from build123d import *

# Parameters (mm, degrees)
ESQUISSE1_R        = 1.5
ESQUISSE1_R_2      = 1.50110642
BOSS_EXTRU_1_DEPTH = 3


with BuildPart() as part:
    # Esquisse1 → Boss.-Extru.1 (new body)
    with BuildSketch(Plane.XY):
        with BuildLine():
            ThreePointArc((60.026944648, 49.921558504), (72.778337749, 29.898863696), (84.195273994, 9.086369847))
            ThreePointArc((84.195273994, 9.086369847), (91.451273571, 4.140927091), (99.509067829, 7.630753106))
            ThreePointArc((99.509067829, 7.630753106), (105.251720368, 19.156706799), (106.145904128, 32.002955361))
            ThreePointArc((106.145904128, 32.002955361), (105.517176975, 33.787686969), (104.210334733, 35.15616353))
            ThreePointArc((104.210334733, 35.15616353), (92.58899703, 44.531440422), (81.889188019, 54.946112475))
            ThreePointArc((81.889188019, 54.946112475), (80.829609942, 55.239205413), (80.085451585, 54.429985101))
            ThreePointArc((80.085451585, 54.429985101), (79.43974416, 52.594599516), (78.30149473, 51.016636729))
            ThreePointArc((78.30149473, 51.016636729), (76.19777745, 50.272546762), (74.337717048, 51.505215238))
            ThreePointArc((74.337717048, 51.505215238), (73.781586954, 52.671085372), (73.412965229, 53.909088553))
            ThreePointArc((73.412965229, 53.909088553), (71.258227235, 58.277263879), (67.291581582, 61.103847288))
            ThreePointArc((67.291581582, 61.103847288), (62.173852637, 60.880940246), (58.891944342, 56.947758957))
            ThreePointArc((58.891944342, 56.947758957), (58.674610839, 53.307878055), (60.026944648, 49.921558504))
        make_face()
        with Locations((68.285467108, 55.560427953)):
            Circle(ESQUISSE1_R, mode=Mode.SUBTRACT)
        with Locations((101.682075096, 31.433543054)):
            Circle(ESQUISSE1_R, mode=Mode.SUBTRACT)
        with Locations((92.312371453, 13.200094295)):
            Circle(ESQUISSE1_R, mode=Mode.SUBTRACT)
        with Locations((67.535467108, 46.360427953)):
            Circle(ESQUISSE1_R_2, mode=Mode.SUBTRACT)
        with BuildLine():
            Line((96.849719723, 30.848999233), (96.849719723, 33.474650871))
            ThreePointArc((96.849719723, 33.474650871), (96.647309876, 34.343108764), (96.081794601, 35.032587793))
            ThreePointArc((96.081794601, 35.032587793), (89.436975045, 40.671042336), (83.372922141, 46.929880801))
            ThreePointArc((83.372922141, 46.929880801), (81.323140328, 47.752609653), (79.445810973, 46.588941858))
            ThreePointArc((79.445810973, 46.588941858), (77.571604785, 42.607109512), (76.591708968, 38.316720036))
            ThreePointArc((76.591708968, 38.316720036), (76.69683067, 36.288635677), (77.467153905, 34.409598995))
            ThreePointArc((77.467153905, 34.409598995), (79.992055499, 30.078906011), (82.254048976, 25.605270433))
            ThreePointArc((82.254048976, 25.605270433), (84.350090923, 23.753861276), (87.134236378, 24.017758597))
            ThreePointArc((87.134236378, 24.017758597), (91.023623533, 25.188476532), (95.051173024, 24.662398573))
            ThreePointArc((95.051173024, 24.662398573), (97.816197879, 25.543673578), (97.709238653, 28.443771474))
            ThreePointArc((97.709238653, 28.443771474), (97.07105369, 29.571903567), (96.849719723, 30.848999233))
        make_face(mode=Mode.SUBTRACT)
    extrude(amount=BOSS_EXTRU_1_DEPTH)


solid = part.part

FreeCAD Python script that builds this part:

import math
import FreeCAD as App
import Part
import Sketcher

V = App.Vector
Q = App.Units.Quantity

doc = App.newDocument("Part")
body = doc.addObject("PartDesign::Body", "Body")

# Sketch on XY plane
sketch1 = body.newObject("Sketcher::SketchObject", "Sketch")
sketch1.AttachmentSupport = (doc.getObject("XY_Plane"), [""])
sketch1.MapMode = "FlatFace"
sketch1.addGeometry([
    Part.ArcOfCircle(Part.Circle(V(-239.950658, -155.189968, 0), V(0, 0, 1), 363.39689), math.radians(26.875776), math.radians(34.362608)),  # 0
    Part.ArcOfCircle(Part.Circle(V(92.312371, 13.200094, 0), V(0, 0, 1), 9.1), math.radians(-153.124224), math.radians(-37.735381)),  # 1
    Part.ArcOfCircle(Part.Circle(V(73.411158, 27.827265, 0), V(0, 0, 1), 33), math.radians(-37.735381), math.radians(7.26947)),  # 2
    Part.ArcOfCircle(Part.Circle(V(101.682075, 31.433543, 0), V(0, 0, 1), 4.5), math.radians(7.26947), math.radians(55.817172)),  # 3
    Part.ArcOfCircle(Part.Circle(V(199.067313, 164.628674, 0), V(0, 0, 1), 160.502266), math.radians(-136.892386), math.radians(-126.228065)),  # 4
    Part.ArcOfCircle(Part.Circle(V(81.119602, 54.225755, 0), V(0, 0, 1), 1.054124), math.radians(43.107614), math.radians(168.82864)),  # 5
    Part.ArcOfCircle(Part.Circle(V(73.402927, 55.74969, 0), V(0, 0, 1), 6.81159), math.radians(-44.015495), math.radians(-11.17136)),  # 6
    Part.ArcOfCircle(Part.Circle(V(76.503615, 52.753769, 0), V(0, 0, 1), 2.5), math.radians(-150.038267), math.radians(-44.015495)),  # 7
    Part.ArcOfCircle(Part.Circle(V(81.532929, 55.652968, 0), V(0, 0, 1), 8.305115), math.radians(-167.879022), math.radians(-150.038267)),  # 8
    Part.ArcOfCircle(Part.Circle(V(63.662978, 51.815138, 0), V(0, 0, 1), 9.972306), math.radians(12.120978), math.radians(68.662061)),  # 9
    Part.ArcOfCircle(Part.Circle(V(64.985035, 55.199417, 0), V(0, 0, 1), 6.338963), math.radians(68.662061), math.radians(163.989778)),  # 10
    Part.ArcOfCircle(Part.Circle(V(66.92976, 54.641401, 0), V(0, 0, 1), 8.362163), math.radians(163.989778), math.radians(214.362608)),  # 11
    Part.Circle(V(92.312371, 13.200094, 0), V(0, 0, 1), 1.5),  # 12
    Part.Circle(V(101.682075, 31.433543, 0), V(0, 0, 1), 1.5),  # 13
    Part.Circle(V(67.535467, 46.360428, 0), V(0, 0, 1), 1.501106),  # 14
    Part.Circle(V(68.285467, 55.560428, 0), V(0, 0, 1), 1.5),  # 15
    Part.LineSegment(V(96.84972, 33.474651, 0), V(96.84972, 30.848999, 0)),  # 16
    Part.ArcOfCircle(Part.Circle(V(100.644804, 30.848999, 0), V(0, 0, 1), 3.795084), math.radians(-180), math.radians(-140.670846)),  # 17
    Part.ArcOfCircle(Part.Circle(V(95.853524, 26.923309, 0), V(0, 0, 1), 2.399059), math.radians(-109.538733), math.radians(39.329154)),  # 18
    Part.ArcOfCircle(Part.Circle(V(91.810107, 15.529536, 0), V(0, 0, 1), 9.690907), math.radians(70.461267), math.radians(118.848861)),  # 19
    Part.ArcOfCircle(Part.Circle(V(85.437747, 27.097437, 0), V(0, 0, 1), 3.516034), math.radians(-154.887996), math.radians(-61.151139)),  # 20
    Part.ArcOfCircle(Part.Circle(V(6.215974, -10.032995, 0), V(0, 0, 1), 83.975441), math.radians(25.112004), math.radians(31.953662)),  # 21
    Part.ArcOfCircle(Part.Circle(V(82.600338, 37.611399, 0), V(0, 0, 1), 6.049884), math.radians(173.304989), math.radians(211.953662)),  # 22
    Part.ArcOfCircle(Part.Circle(V(96.924351, 35.929978, 0), V(0, 0, 1), 20.472246), math.radians(148.623847), math.radians(173.304989)),  # 23
    Part.ArcOfCircle(Part.Circle(V(81.534763, 45.315033, 0), V(0, 0, 1), 2.446745), math.radians(41.299736), math.radians(148.623847)),  # 24
    Part.ArcOfCircle(Part.Circle(V(150.512654, 105.913028, 0), V(0, 0, 1), 89.368648), math.radians(-138.700264), math.radians(-127.521558)),  # 25
    Part.ArcOfCircle(Part.Circle(V(94.885416, 33.474651, 0), V(0, 0, 1), 1.964304), math.radians(0), math.radians(52.478442)),  # 26
], False)
sketch1.addConstraint([
    Sketcher.Constraint("Coincident", 0, 1, 1, 1),
    Sketcher.Constraint("Coincident", 1, 2, 2, 1),
    Sketcher.Constraint("Coincident", 2, 2, 3, 1),
    Sketcher.Constraint("Coincident", 3, 2, 4, 2),
    Sketcher.Constraint("Coincident", 4, 1, 5, 1),
    Sketcher.Constraint("Coincident", 5, 2, 6, 2),
    Sketcher.Constraint("Coincident", 6, 1, 7, 2),
    Sketcher.Constraint("Coincident", 7, 1, 8, 2),
    Sketcher.Constraint("Coincident", 8, 1, 9, 1),
    Sketcher.Constraint("Coincident", 9, 2, 10, 1),
    Sketcher.Constraint("Coincident", 10, 2, 11, 1),
    Sketcher.Constraint("Coincident", 11, 2, 0, 2),
    Sketcher.Constraint("Coincident", 16, 2, 17, 1),
    Sketcher.Constraint("Coincident", 17, 2, 18, 2),
    Sketcher.Constraint("Coincident", 18, 1, 19, 1),
    Sketcher.Constraint("Coincident", 19, 2, 20, 2),
    Sketcher.Constraint("Coincident", 20, 1, 21, 1),
    Sketcher.Constraint("Coincident", 21, 2, 22, 2),
    Sketcher.Constraint("Coincident", 22, 1, 23, 2),
    Sketcher.Constraint("Coincident", 23, 1, 24, 2),
    Sketcher.Constraint("Coincident", 24, 1, 25, 1),
    Sketcher.Constraint("Coincident", 25, 2, 26, 2),
    Sketcher.Constraint("Coincident", 26, 1, 16, 1),
    Sketcher.Constraint("Vertical", 16),
    Sketcher.Constraint("Coincident", 12, 3, 1, 3),
    Sketcher.Constraint("Coincident", 13, 3, 3, 3),
    Sketcher.Constraint("Diameter", 12, Q("3 mm")),
    Sketcher.Constraint("Diameter", 13, Q("3 mm")),
    Sketcher.Constraint("Diameter", 15, Q("3 mm")),
    Sketcher.Constraint("Radius", 2, Q("33 mm")),
    Sketcher.Constraint("Radius", 1, Q("9.1 mm")),
    Sketcher.Constraint("Radius", 3, Q("4.5 mm")),
    Sketcher.Constraint("Radius", 7, Q("2.5 mm")),
    Sketcher.Constraint("Radius", 0, Q("363.39689 mm")),
    Sketcher.Constraint("Radius", 6, Q("6.81159 mm")),
    Sketcher.Constraint("Radius", 18, Q("2.399059 mm")),
    Sketcher.Constraint("Radius", 21, Q("83.975441 mm")),
    Sketcher.Constraint("Radius", 25, Q("89.368648 mm")),
    Sketcher.Constraint("Diameter", 14, Q("3.002213 mm")),
    Sketcher.Constraint("DistanceY", -1, 1, 17, 3, Q("30.848999 mm")),
    Sketcher.Constraint("DistanceY", -1, 1, 16, 2, Q("30.848999 mm")),
    Sketcher.Constraint("Radius", 4, Q("160.502266 mm")),
    Sketcher.Constraint("Radius", 5, Q("1.054124 mm")),
    Sketcher.Constraint("Radius", 8, Q("8.305115 mm")),
    Sketcher.Constraint("Radius", 9, Q("9.972306 mm")),
    Sketcher.Constraint("Radius", 10, Q("6.338963 mm")),
    Sketcher.Constraint("Radius", 11, Q("8.362163 mm")),
    Sketcher.Constraint("Radius", 17, Q("3.795084 mm")),
    Sketcher.Constraint("Radius", 19, Q("9.690907 mm")),
    Sketcher.Constraint("Radius", 20, Q("3.516034 mm")),
    Sketcher.Constraint("Radius", 22, Q("6.049884 mm")),
    Sketcher.Constraint("Radius", 23, Q("20.472246 mm")),
    Sketcher.Constraint("Radius", 24, Q("2.446745 mm")),
    Sketcher.Constraint("Radius", 26, Q("1.964304 mm")),
    Sketcher.Constraint("DistanceX", 10, 2, 11, 2, Q("1.135 mm")),
    Sketcher.Constraint("DistanceY", 16, 2, 16, 1, Q("2.625652 mm")),
    Sketcher.Constraint("DistanceY", -1, 1, 11, 3, Q("54.641401 mm")),
    Sketcher.Constraint("DistanceY", -1, 1, 22, 3, Q("37.611399 mm")),
    Sketcher.Constraint("DistanceY", -1, 1, 18, 1, Q("24.662399 mm")),
    Sketcher.Constraint("DistanceY", -1, 1, 21, 2, Q("34.409599 mm")),
    Sketcher.Constraint("DistanceY", 7, 3, 8, 3, Q("2.899199 mm")),
    Sketcher.Constraint("DistanceY", 19, 3, 20, 3, Q("11.567901 mm")),
    Sketcher.Constraint("DistanceX", 17, 3, 2, 2, Q("5.5011 mm")),
    Sketcher.Constraint("DistanceY", 8, 1, 6, 3, Q("1.840601 mm")),
    Sketcher.Constraint("DistanceX", 15, 3, 8, 1, Q("5.127498 mm")),
    Sketcher.Constraint("DistanceY", 11, 2, 10, 2, Q("7.0262 mm")),
    Sketcher.Constraint("DistanceX", 20, 1, 20, 3, Q("3.183698 mm")),
    Sketcher.Constraint("DistanceX", -1, 1, 1, 3, Q("92.312371 mm")),
    Sketcher.Constraint("DistanceY", -1, 1, 6, 3, Q("55.74969 mm")),
    Sketcher.Constraint("DistanceY", -1, 1, 7, 3, Q("52.753769 mm")),
    Sketcher.Constraint("DistanceX", -1, 1, 8, 3, Q("81.532929 mm")),
    Sketcher.Constraint("DistanceY", -1, 1, 9, 3, Q("51.815138 mm")),
    Sketcher.Constraint("DistanceX", -1, 1, 11, 3, Q("66.92976 mm")),
    Sketcher.Constraint("DistanceY", -1, 1, 18, 3, Q("26.923309 mm")),
    Sketcher.Constraint("DistanceX", -1, 1, 23, 3, Q("96.924351 mm")),
    Sketcher.Constraint("DistanceY", -1, 1, 23, 3, Q("35.929978 mm")),
    Sketcher.Constraint("DistanceY", -1, 1, 26, 3, Q("33.474651 mm")),
    Sketcher.Constraint("DistanceY", -1, 1, 0, 1, Q("9.08637 mm")),
    Sketcher.Constraint("DistanceX", -1, 1, 4, 1, Q("81.889188 mm")),
    Sketcher.Constraint("DistanceX", -1, 1, 5, 2, Q("80.085452 mm")),
    Sketcher.Constraint("DistanceX", -1, 1, 9, 2, Q("67.291582 mm")),
    Sketcher.Constraint("DistanceX", -1, 1, 16, 2, Q("96.84972 mm")),
    Sketcher.Constraint("DistanceX", -1, 1, 17, 2, Q("97.709239 mm")),
    Sketcher.Constraint("DistanceY", -1, 1, 19, 2, Q("24.017759 mm")),
    Sketcher.Constraint("DistanceX", -1, 1, 20, 1, Q("82.254049 mm")),
    Sketcher.Constraint("DistanceX", -1, 1, 22, 1, Q("76.591709 mm")),
    Sketcher.Constraint("DistanceX", -1, 1, 23, 1, Q("79.445811 mm")),
    Sketcher.Constraint("DistanceY", -1, 1, 24, 1, Q("46.929881 mm")),
    Sketcher.Constraint("DistanceX", 0, 3, 1, 3, Q("332.263029 mm")),
    Sketcher.Constraint("DistanceY", 1, 3, 2, 3, Q("14.627171 mm")),
    Sketcher.Constraint("DistanceY", 1, 3, 3, 3, Q("18.233449 mm")),
    Sketcher.Constraint("DistanceX", 3, 3, 4, 3, Q("97.385238 mm")),
    Sketcher.Constraint("DistanceY", 3, 3, 4, 3, Q("133.195131 mm")),
    Sketcher.Constraint("DistanceX", 9, 3, 14, 3, Q("3.872489 mm")),
    Sketcher.Constraint("DistanceY", 14, 3, 9, 3, Q("5.45471 mm")),
    Sketcher.Constraint("DistanceY", 10, 3, 15, 3, Q("0.361011 mm")),
    Sketcher.Constraint("DistanceX", 5, 3, 24, 3, Q("0.415161 mm")),
    Sketcher.Constraint("DistanceY", 1, 2, 1, 3, Q("5.569341 mm")),
    Sketcher.Constraint("DistanceX", 7, 3, 6, 1, Q("1.79788 mm")),
    Sketcher.Constraint("DistanceY", 6, 1, 7, 1, Q("0.488579 mm")),
    Sketcher.Constraint("DistanceY", 25, 2, 23, 3, Q("0.897391 mm")),
])
pad1 = body.newObject("PartDesign::Pad", "Pad")
pad1.Profile = sketch1
pad1.Length = 3

doc.recompute()
